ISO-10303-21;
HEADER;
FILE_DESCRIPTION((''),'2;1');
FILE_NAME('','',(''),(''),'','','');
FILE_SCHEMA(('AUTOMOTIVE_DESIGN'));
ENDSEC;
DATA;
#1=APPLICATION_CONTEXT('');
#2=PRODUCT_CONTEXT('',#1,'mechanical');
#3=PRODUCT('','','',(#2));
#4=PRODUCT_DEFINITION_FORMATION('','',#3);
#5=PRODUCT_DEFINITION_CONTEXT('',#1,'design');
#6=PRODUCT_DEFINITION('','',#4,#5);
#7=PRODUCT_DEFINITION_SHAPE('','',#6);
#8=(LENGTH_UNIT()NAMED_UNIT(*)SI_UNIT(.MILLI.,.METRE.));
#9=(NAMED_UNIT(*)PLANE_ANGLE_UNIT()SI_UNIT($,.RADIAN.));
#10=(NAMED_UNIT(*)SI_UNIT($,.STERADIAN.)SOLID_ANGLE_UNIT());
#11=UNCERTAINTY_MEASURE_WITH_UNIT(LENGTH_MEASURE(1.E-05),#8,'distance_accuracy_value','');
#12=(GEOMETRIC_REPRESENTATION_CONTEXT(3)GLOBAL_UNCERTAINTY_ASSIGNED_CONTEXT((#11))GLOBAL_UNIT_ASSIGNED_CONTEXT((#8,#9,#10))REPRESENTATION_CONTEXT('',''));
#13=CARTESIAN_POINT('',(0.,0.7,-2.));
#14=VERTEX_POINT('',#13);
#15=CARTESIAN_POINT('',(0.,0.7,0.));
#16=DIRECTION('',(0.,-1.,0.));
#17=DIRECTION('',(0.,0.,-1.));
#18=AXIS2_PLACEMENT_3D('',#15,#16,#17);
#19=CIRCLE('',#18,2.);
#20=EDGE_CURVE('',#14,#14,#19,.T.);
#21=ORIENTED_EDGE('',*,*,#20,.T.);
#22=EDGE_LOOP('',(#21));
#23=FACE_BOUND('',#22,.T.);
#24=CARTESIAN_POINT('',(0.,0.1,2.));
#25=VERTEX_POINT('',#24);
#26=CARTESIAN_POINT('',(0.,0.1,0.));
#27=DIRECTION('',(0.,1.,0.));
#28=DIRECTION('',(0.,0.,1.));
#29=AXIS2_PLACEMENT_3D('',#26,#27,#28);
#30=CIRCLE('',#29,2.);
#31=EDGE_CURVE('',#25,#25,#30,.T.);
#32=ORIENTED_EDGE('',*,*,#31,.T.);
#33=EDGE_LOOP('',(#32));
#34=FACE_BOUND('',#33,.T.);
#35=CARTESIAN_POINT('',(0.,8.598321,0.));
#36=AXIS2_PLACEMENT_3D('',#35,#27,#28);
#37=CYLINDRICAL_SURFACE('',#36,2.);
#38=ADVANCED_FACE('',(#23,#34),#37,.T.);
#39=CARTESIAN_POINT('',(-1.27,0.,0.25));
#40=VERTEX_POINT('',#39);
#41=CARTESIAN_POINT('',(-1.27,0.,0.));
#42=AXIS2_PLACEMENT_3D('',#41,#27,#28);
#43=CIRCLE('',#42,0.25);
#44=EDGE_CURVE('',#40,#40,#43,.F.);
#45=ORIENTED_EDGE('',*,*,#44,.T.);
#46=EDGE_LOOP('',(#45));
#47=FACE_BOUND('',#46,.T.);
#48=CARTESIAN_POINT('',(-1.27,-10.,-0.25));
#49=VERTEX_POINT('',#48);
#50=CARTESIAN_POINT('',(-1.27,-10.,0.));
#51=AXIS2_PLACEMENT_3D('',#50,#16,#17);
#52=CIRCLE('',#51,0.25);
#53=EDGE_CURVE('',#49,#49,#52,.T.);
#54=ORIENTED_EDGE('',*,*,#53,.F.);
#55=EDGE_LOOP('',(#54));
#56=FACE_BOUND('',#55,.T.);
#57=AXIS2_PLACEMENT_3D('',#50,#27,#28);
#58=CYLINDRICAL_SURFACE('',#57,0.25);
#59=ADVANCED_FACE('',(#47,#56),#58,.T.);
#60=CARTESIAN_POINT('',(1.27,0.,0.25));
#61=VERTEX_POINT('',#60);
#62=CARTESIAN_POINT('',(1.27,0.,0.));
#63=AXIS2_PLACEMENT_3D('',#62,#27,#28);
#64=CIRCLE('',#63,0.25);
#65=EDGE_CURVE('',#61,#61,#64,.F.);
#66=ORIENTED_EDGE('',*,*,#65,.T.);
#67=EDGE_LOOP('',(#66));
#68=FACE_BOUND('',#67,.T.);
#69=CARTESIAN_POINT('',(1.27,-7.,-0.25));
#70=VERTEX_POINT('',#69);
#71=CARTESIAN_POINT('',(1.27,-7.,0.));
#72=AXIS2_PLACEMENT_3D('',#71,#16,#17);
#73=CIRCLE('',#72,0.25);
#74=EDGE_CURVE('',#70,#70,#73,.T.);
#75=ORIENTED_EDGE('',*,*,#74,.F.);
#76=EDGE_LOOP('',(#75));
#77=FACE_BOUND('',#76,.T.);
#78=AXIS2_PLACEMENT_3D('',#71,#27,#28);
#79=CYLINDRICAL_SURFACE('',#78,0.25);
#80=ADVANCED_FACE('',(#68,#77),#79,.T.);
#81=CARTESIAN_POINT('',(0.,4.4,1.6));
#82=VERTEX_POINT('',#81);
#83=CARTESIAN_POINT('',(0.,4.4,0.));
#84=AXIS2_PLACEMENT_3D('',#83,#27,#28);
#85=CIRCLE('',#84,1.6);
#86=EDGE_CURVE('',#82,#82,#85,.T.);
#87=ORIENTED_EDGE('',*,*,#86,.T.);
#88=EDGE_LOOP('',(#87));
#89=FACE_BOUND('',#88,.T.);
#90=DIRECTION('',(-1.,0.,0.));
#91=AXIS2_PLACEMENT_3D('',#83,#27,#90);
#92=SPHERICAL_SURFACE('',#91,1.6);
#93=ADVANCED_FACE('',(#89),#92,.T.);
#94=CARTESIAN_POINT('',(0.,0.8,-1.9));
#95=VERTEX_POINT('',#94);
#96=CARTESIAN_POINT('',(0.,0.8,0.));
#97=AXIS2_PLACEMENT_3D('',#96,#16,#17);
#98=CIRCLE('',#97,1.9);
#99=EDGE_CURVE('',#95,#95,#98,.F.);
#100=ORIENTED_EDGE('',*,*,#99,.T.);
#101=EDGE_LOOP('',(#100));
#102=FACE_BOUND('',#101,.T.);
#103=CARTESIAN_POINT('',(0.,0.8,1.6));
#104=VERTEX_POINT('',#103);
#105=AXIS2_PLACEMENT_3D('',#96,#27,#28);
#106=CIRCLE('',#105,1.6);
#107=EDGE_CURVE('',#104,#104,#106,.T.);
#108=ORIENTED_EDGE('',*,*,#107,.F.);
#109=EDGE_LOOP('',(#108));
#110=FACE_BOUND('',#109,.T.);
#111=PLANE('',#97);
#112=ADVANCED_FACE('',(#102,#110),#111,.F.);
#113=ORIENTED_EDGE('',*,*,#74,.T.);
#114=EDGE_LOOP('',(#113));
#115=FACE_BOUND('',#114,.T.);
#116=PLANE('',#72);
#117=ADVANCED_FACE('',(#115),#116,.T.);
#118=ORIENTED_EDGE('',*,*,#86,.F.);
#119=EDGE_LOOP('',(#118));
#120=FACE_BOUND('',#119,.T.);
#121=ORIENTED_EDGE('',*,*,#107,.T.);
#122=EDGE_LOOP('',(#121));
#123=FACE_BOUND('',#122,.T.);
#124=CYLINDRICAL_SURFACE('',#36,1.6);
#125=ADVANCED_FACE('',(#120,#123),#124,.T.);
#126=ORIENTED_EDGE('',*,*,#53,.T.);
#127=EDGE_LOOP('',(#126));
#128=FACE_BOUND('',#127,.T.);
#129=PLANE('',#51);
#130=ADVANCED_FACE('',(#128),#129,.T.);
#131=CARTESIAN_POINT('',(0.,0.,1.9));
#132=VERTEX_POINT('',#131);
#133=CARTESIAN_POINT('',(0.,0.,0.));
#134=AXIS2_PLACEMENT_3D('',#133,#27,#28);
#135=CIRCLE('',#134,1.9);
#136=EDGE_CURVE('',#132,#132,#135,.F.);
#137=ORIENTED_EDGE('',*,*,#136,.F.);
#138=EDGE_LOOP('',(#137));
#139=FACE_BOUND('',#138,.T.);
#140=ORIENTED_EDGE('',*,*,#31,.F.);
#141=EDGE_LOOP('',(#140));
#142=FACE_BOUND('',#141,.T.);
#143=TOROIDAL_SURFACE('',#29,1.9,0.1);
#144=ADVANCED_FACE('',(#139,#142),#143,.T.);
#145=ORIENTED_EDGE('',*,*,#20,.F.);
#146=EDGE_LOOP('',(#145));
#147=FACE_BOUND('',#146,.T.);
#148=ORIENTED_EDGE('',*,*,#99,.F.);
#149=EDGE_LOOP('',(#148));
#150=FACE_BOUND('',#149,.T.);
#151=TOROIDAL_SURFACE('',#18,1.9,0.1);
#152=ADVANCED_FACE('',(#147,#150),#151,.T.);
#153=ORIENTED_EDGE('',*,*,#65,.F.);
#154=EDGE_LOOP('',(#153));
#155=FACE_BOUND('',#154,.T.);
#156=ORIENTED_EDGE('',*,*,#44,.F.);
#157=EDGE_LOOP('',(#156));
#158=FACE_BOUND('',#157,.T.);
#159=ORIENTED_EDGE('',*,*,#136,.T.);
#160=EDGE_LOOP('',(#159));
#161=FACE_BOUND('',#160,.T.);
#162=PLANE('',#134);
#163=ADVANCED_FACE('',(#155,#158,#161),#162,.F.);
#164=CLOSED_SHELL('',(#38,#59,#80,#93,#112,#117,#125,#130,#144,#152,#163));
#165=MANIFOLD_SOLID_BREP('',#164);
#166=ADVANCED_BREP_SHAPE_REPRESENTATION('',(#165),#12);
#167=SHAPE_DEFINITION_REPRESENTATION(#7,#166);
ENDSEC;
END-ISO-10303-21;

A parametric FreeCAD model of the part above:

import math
import FreeCAD as App
import Part
import Sketcher

V = App.Vector
Q = App.Units.Quantity


def edges_at(feature, points):
    """Names of the edges that pass closest to the given points."""
    edges = feature.Shape.Edges
    near = lambda p: min(range(len(edges)), key=lambda i: edges[i].distToShape(Part.Vertex(*p))[0])
    return sorted({f"Edge{near(p) + 1}" for p in points})

doc = App.newDocument("Part")
body = doc.addObject("PartDesign::Body", "Body")

# Sketch on XY plane
sketch1 = doc.addObject("Sketcher::SketchObject", "Sketch")
body.addObject(sketch1)
sketch1.AttachmentSupport = (doc.XY_Plane, [""])
sketch1.MapMode = "FlatFace"
sketch1.addGeometry(Part.LineSegment(V(0, 0, 0), V(2, 0, 0)), False)
sketch1.addGeometry(Part.LineSegment(V(2, 0, 0), V(2, 0.8, 0)), False)
sketch1.addGeometry(Part.LineSegment(V(2, 0.8, 0), V(1.6, 0.8, 0)), False)
sketch1.addGeometry(Part.LineSegment(V(1.6, 0.8, 0), V(1.6, 4.4, 0)), False)
sketch1.addGeometry(Part.ArcOfCircle(Part.Circle(V(0, 4.4, 0), V(0, 0, 1), 1.6), math.radians(0), math.radians(90)), False)
sketch1.addGeometry(Part.LineSegment(V(0, 6, 0), V(0, 0, 0)), False)
sketch1.addConstraint(Sketcher.Constraint("Coincident", 0, 2, 1, 1))
sketch1.addConstraint(Sketcher.Constraint("Coincident", 1, 2, 2, 1))
sketch1.addConstraint(Sketcher.Constraint("Coincident", 2, 2, 3, 1))
sketch1.addConstraint(Sketcher.Constraint("Tangent", 3, 2, 4, 1))
sketch1.addConstraint(Sketcher.Constraint("Coincident", 4, 2, 5, 1))
sketch1.addConstraint(Sketcher.Constraint("Coincident", 5, 2, 0, 1))
sketch1.addConstraint(Sketcher.Constraint("Horizontal", 0))
sketch1.addConstraint(Sketcher.Constraint("Vertical", 1))
sketch1.addConstraint(Sketcher.Constraint("Horizontal", 2))
sketch1.addConstraint(Sketcher.Constraint("Vertical", 3))
sketch1.addConstraint(Sketcher.Constraint("Vertical", 5))
sketch1.addConstraint(Sketcher.Constraint("Coincident", 5, 2, -1, 1))
sketch1.addConstraint(Sketcher.Constraint("PointOnObject", 4, 3, -2))
sketch1.addConstraint(Sketcher.Constraint("Radius", 4, Q("1.6 mm")))
sketch1.addConstraint(Sketcher.Constraint("DistanceX", 0, 1, 0, 2, Q("2 mm")))
sketch1.addConstraint(Sketcher.Constraint("DistanceY", 5, 2, 5, 1, Q("6 mm")))
sketch1.addConstraint(Sketcher.Constraint("DistanceY", 1, 1, 1, 2, Q("0.8 mm")))
revolution = doc.addObject("PartDesign::Revolution", "Revolution")
body.addObject(revolution)
revolution.Profile = sketch1
revolution.ReferenceAxis = (sketch1, ["V_Axis"])
revolution.Angle = 360
doc.recompute()

fillet = doc.addObject("PartDesign::Fillet", "Fillet")
body.addObject(fillet)
fillet.Base = (revolution, edges_at(revolution, [(-2, 0, 0), (-2, 0.8, 0)]))
fillet.Radius = 0.1

# Sketch on XZ plane
sketch2 = doc.addObject("Sketcher::SketchObject", "Sketch001")
body.addObject(sketch2)
sketch2.AttachmentSupport = (doc.XZ_Plane, [""])
sketch2.MapMode = "FlatFace"
sketch2.addGeometry(Part.Circle(V(-1.27, 0, 0), V(0, 0, 1), 0.25), False)
sketch2.addConstraint(Sketcher.Constraint("PointOnObject", 0, 3, -1))
sketch2.addConstraint(Sketcher.Constraint("Diameter", 0, Q("0.5 mm")))
sketch2.addConstraint(Sketcher.Constraint("DistanceX", 0, 3, -1, 1, Q("1.27 mm")))
pad1 = doc.addObject("PartDesign::Pad", "Pad")
body.addObject(pad1)
pad1.Profile = sketch2
pad1.Length = 10

# Sketch on XZ plane
sketch3 = doc.addObject("Sketcher::SketchObject", "Sketch002")
body.addObject(sketch3)
sketch3.AttachmentSupport = (doc.XZ_Plane, [""])
sketch3.MapMode = "FlatFace"
sketch3.addGeometry(Part.Circle(V(1.27, 0, 0), V(0, 0, 1), 0.25), False)
sketch3.addConstraint(Sketcher.Constraint("PointOnObject", 0, 3, -1))
sketch3.addConstraint(Sketcher.Constraint("Diameter", 0, Q("0.5 mm")))
sketch3.addConstraint(Sketcher.Constraint("DistanceX", -1, 1, 0, 3, Q("1.27 mm")))
pad2 = doc.addObject("PartDesign::Pad", "Pad001")
body.addObject(pad2)
pad2.Profile = sketch3
pad2.Length = 7

doc.recompute()
